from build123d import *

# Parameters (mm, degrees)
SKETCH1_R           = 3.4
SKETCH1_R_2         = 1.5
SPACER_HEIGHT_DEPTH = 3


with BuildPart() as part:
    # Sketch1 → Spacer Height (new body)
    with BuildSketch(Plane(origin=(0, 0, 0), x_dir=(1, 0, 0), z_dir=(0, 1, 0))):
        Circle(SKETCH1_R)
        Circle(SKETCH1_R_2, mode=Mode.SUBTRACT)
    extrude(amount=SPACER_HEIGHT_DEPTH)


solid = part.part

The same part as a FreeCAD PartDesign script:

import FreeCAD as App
import Part
import Sketcher
Q = App.Units.Quantity

doc = App.newDocument("Part")
params = doc.addObject("Spreadsheet::Sheet", "Params")
for row, (alias, value) in enumerate([
    ("sketch1_diameter", "3 mm"),
    ("sketch1_diameter2", "6.8 mm"),
    ("pad1_length", "3 mm"),
], start=1):
    params.set(f"A{row}", alias)
    params.set(f"B{row}", "=" + value)
    params.setAlias(f"B{row}", alias)

body = doc.addObject("PartDesign::Body", "Body")

sketch1 = doc.addObject("Sketcher::SketchObject", "Sketch")
body.addObject(sketch1)
sketch1.AttachmentSupport = (doc.XZ_Plane, [""])
sketch1.MapMode = "FlatFace"
sketch1.addGeometry(Part.Circle(App.Vector(0, 0, 0), App.Vector(0, 0, 1), 3.4), False)
sketch1.addGeometry(Part.Circle(App.Vector(0, 0, 0), App.Vector(0, 0, 1), 1.5), False)
sketch1.addConstraint(Sketcher.Constraint("Coincident", 0, 3, -1, 1))
sketch1.addConstraint(Sketcher.Constraint("Coincident", 1, 3, -1, 1))
sketch1.addConstraint(Sketcher.Constraint("Diameter", 1, Q("3 mm")))
sketch1.addConstraint(Sketcher.Constraint("Diameter", 0, Q("6.8 mm")))
sketch1.setExpression("Constraints[2]", "Params.sketch1_diameter")
sketch1.setExpression("Constraints[3]", "Params.sketch1_diameter2")
pad1 = doc.addObject("PartDesign::Pad", "Pad")
body.addObject(pad1)
pad1.Profile = sketch1
pad1.setExpression("Length", "Params.pad1_length")
pad1.Reversed = True

doc.recompute()
